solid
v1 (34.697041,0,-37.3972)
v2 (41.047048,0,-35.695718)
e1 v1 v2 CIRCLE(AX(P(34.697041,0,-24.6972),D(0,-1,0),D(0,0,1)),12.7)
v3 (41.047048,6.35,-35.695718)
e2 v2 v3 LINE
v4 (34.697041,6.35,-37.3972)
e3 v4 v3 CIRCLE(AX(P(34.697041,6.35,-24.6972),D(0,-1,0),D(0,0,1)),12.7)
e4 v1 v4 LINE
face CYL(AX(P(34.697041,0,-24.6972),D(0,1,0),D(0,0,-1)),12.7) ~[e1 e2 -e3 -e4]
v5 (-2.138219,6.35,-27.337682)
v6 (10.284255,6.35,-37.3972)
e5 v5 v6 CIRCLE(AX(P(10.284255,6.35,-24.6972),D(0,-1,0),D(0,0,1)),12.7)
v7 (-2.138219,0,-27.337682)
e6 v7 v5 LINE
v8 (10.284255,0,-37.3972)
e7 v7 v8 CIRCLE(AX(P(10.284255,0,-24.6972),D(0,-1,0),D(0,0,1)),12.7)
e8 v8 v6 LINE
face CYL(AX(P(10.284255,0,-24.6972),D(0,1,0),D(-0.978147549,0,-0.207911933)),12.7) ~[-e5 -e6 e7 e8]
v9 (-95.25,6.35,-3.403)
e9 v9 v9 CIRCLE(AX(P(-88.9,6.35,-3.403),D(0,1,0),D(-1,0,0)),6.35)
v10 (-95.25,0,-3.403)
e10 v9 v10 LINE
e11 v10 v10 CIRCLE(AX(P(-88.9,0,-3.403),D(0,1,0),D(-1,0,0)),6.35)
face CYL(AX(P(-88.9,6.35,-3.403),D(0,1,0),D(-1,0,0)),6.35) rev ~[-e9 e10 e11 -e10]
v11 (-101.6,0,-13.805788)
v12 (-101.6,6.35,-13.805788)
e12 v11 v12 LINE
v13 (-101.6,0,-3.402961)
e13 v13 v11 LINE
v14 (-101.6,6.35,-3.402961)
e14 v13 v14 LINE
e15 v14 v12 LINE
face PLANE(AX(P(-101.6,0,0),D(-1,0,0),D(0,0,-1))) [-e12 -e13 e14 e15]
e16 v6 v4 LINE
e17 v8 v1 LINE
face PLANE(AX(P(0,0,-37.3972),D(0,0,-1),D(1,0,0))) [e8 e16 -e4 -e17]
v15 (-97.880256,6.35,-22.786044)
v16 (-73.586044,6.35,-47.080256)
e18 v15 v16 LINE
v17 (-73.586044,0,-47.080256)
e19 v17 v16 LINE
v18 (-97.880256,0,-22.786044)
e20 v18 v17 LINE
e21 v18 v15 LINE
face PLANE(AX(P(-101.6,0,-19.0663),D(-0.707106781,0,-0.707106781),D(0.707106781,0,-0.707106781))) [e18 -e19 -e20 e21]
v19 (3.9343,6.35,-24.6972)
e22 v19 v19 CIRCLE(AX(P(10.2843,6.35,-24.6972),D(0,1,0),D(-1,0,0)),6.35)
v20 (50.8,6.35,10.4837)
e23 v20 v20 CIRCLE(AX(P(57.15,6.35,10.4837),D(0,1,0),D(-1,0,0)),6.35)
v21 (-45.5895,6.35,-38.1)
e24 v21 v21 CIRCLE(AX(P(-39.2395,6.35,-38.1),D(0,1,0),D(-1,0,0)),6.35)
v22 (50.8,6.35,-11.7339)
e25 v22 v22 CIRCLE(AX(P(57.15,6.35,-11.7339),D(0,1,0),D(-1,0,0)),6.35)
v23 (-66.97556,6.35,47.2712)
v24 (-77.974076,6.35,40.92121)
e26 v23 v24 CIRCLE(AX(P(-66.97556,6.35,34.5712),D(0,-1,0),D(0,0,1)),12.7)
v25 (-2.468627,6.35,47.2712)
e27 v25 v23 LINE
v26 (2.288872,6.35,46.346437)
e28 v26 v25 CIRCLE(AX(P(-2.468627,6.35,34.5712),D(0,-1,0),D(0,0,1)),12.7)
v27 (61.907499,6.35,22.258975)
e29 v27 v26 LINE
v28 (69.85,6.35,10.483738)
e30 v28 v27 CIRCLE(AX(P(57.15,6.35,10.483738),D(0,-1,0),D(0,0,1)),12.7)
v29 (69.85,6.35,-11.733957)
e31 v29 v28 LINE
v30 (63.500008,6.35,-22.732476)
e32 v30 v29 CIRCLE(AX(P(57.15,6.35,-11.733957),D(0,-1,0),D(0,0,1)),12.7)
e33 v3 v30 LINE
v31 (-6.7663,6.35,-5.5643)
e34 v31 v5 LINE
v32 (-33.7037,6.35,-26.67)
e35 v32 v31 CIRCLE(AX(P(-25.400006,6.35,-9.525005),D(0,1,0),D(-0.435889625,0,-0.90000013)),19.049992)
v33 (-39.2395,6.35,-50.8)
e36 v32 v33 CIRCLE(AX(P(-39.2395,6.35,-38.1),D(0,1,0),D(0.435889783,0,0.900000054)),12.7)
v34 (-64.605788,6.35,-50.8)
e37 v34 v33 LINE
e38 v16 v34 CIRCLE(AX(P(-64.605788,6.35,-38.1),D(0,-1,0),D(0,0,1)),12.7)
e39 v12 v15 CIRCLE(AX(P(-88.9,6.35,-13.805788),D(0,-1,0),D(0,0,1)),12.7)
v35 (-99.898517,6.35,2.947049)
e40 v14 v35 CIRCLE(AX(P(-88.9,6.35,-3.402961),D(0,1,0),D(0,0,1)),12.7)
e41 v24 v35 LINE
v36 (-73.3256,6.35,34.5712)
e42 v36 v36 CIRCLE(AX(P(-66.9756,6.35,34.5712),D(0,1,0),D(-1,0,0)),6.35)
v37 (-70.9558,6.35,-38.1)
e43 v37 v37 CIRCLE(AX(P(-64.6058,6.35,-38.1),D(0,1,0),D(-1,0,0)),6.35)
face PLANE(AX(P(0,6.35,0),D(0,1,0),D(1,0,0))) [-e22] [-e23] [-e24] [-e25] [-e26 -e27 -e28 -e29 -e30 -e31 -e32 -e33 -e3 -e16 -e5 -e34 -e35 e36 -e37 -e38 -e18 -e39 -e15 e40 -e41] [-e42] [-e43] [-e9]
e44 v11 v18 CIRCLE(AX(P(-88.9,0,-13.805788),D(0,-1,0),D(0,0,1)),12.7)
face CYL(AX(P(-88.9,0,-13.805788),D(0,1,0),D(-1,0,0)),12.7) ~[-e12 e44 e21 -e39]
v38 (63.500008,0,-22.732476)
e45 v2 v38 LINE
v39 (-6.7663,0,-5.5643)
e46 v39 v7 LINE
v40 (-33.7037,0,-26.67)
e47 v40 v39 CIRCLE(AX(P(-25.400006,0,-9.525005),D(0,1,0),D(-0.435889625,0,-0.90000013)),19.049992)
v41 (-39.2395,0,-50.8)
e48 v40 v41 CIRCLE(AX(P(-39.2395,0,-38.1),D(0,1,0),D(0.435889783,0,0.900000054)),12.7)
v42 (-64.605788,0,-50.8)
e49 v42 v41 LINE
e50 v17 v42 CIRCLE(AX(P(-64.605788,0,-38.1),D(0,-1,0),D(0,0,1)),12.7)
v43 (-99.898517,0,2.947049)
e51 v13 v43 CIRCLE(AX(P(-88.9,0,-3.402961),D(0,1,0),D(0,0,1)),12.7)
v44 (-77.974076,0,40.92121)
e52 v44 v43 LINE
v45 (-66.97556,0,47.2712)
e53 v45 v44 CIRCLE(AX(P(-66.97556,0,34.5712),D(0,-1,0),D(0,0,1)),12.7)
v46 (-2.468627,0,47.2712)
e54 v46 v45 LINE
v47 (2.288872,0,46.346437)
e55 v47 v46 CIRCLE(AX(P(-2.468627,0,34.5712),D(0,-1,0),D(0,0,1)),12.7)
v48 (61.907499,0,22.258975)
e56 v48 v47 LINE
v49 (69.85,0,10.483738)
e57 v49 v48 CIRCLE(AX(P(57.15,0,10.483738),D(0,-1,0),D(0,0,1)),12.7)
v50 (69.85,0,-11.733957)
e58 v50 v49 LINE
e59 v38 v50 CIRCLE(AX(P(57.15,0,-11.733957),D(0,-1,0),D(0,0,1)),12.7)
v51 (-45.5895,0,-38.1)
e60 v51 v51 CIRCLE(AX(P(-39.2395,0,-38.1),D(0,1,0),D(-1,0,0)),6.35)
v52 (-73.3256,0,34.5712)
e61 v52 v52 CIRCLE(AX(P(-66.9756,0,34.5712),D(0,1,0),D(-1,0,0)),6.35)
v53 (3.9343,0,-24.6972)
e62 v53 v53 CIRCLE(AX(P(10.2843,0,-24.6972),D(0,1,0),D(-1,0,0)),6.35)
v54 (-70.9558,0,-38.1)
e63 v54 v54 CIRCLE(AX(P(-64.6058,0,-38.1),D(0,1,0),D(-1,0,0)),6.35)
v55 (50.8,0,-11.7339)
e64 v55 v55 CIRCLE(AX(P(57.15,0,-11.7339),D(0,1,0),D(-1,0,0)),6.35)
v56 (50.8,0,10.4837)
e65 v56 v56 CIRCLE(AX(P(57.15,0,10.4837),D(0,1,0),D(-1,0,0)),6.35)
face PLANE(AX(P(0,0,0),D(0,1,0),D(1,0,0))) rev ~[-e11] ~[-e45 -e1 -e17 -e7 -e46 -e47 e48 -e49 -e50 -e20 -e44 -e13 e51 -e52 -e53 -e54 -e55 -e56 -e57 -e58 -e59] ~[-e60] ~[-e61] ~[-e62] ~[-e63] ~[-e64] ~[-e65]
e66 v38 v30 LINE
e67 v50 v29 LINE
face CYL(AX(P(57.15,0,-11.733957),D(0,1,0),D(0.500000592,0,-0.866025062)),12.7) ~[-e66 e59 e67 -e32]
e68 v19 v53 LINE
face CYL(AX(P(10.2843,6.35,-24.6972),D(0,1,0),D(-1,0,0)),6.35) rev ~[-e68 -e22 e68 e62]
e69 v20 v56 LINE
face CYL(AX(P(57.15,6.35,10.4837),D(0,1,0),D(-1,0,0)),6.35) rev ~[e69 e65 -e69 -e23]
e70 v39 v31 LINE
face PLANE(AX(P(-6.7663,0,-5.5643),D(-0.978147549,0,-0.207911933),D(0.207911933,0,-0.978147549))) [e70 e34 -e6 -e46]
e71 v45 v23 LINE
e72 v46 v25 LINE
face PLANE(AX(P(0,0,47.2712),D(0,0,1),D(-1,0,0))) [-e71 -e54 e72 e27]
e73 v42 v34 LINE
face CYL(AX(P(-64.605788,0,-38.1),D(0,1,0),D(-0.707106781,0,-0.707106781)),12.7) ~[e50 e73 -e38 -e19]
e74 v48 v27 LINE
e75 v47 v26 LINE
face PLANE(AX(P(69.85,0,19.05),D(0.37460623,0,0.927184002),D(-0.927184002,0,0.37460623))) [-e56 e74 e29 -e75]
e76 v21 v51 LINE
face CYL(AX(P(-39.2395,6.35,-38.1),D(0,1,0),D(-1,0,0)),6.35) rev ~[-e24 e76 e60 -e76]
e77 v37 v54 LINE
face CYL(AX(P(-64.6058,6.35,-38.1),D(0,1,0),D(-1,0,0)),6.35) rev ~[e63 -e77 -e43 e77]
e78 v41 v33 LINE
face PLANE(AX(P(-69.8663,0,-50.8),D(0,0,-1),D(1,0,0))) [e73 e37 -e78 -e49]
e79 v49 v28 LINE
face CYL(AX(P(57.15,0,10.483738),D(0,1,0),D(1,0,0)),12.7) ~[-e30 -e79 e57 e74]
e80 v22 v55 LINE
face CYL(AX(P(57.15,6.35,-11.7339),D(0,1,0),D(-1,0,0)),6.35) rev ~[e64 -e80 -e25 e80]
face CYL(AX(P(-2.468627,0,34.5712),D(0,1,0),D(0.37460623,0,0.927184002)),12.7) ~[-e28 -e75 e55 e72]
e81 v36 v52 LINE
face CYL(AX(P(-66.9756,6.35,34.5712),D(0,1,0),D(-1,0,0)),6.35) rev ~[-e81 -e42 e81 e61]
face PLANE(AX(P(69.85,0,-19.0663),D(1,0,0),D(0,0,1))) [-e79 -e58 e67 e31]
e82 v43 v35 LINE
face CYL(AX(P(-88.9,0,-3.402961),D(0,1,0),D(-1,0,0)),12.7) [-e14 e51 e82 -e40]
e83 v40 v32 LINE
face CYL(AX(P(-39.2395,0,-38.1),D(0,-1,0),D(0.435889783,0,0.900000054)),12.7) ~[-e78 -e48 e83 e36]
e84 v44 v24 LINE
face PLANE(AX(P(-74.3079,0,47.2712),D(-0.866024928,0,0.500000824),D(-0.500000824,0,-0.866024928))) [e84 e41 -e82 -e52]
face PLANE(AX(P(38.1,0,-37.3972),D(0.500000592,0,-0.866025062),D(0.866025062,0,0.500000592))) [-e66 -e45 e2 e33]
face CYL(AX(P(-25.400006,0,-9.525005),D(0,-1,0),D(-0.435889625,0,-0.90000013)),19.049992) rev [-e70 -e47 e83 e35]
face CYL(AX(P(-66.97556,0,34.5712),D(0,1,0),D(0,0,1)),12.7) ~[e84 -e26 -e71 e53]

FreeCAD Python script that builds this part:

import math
import FreeCAD as App
import Part
import Sketcher
from FreeCAD import Vector
Q = App.Units.Quantity


def edges_at(feature, points):
    """Names of the edges that pass closest to the given points."""
    edges = feature.Shape.Edges
    near = lambda p: min(range(len(edges)), key=lambda i: edges[i].distToShape(Part.Vertex(*p))[0])
    return sorted({f"Edge{near(p) + 1}" for p in points})

doc = App.newDocument("Part")
body = doc.addObject("PartDesign::Body", "Body")

# Sketch on XZ plane
sketch1 = body.newObject("Sketcher::SketchObject", "Sketch")
sketch1.AttachmentSupport = (doc.getObject("XZ_Plane"), [""])
sketch1.MapMode = "FlatFace"
sketch1.addGeometry([
    Part.LineSegment(Vector(-101.6, -19.0663, 0), Vector(-101.6, 0, 0)),  # 0
    Part.LineSegment(Vector(-101.6, 0, 0), Vector(-74.3079, 47.2712, 0)),  # 1
    Part.LineSegment(Vector(-74.3079, 47.2712, 0), Vector(0, 47.2712, 0)),  # 2
    Part.LineSegment(Vector(0, 47.2712, 0), Vector(69.85, 19.05, 0)),  # 3
    Part.LineSegment(Vector(69.85, 19.05, 0), Vector(69.85, -19.0663, 0)),  # 4
    Part.LineSegment(Vector(69.85, -19.0663, 0), Vector(38.1, -37.3972, 0)),  # 5
    Part.LineSegment(Vector(38.1, -37.3972, 0), Vector(0, -37.3972, 0)),  # 6
    Part.LineSegment(Vector(0, -37.3972, 0), Vector(-6.7663, -5.5643, 0)),  # 7
    Part.ArcOfCircle(Part.Circle(Vector(-25.4, -9.525, 0), Vector(0, 0, 1), 19.049999), math.radians(11.999955), math.radians(244.158074)),  # 8
    Part.ArcOfCircle(Part.Circle(Vector(-39.2395, -38.1, 0), Vector(0, 0, 1), 12.699999), math.radians(-90), math.radians(64.158074)),  # 9
    Part.LineSegment(Vector(-39.2395, -50.8, 0), Vector(-69.8663, -50.8, 0)),  # 10
    Part.LineSegment(Vector(-69.8663, -50.8, 0), Vector(-101.6, -19.0663, 0)),  # 11
], False)
sketch1.addConstraint([
    Sketcher.Constraint("Coincident", 0, 2, 1, 1),
    Sketcher.Constraint("Coincident", 1, 2, 2, 1),
    Sketcher.Constraint("Coincident", 2, 2, 3, 1),
    Sketcher.Constraint("Coincident", 3, 2, 4, 1),
    Sketcher.Constraint("Coincident", 4, 2, 5, 1),
    Sketcher.Constraint("Coincident", 5, 2, 6, 1),
    Sketcher.Constraint("Coincident", 6, 2, 7, 1),
    Sketcher.Constraint("Tangent", 7, 2, 8, 1),
    Sketcher.Constraint("Tangent", 8, 2, 9, 2),
    Sketcher.Constraint("Tangent", 9, 1, 10, 1),
    Sketcher.Constraint("Coincident", 10, 2, 11, 1),
    Sketcher.Constraint("Coincident", 11, 2, 0, 1),
    Sketcher.Constraint("Vertical", 0),
    Sketcher.Constraint("Horizontal", 2),
    Sketcher.Constraint("Vertical", 4),
    Sketcher.Constraint("Horizontal", 6),
    Sketcher.Constraint("Horizontal", 10),
    Sketcher.Constraint("PointOnObject", 0, 2, -1),
    Sketcher.Constraint("PointOnObject", 2, 2, -2),
    Sketcher.Constraint("PointOnObject", 6, 2, -2),
    Sketcher.Constraint("Horizontal", 4, 2, 11, 2),
    Sketcher.Constraint("Radius", 9, Q("0.5 in")),
    Sketcher.Constraint("Radius", 8, Q("0.75 in")),
    Sketcher.Constraint("DistanceX", 6, 2, 6, 1, Q("1.5 in")),
    Sketcher.Constraint("DistanceX", 8, 3, -1, 1, Q("1 in")),
    Sketcher.Constraint("DistanceX", 0, 2, -1, 1, Q("4 in")),
    Sketcher.Constraint("DistanceY", 9, 1, -1, 1, Q("2 in")),
    Sketcher.Constraint("Angle", 5, Q("-150 deg")),
    Sketcher.Constraint("Angle", 7, Q("102 deg")),
    Sketcher.Constraint("Angle", 11, Q("135 deg")),
    Sketcher.Constraint("DistanceX", -1, 1, 3, 2, Q("2.75 in")),
    Sketcher.Constraint("DistanceY", -1, 1, 3, 2, Q("0.75 in")),
    Sketcher.Constraint("DistanceY", 8, 3, -1, 1, Q("0.375 in")),
    Sketcher.Constraint("Angle", 1, Q("60 deg")),
    Sketcher.Constraint("Angle", 3, Q("-22 deg")),
])
pad1 = body.newObject("PartDesign::Pad", "Pad")
pad1.Profile = sketch1
pad1.Length = Q("0.25 in")
pad1.Reversed = True
doc.recompute()

fillet = body.newObject("PartDesign::Fillet", "Fillet")
fillet.Base = (pad1, edges_at(pad1, [
    (-69.866, 3.175, -50.8),
    (-101.6, 3.175, -19.066),
    (-101.6, 3.175, 0),
    (-74.308, 3.175, 47.271),
    (0, 3.175, 47.271),
    (0, 3.175, -37.397),
    (38.1, 3.175, -37.397),
    (69.85, 3.175, -19.066),
    (69.85, 3.175, 19.05),
]))
fillet.Radius = Q("0.5 in")

# Sketch on XZ plane
sketch2 = body.newObject("Sketcher::SketchObject", "Sketch001")
sketch2.AttachmentSupport = (doc.getObject("XZ_Plane"), [""])
sketch2.MapMode = "FlatFace"
sketch2.AttachmentOffset = App.Placement(Vector(0, 0, -0.25 * 25.4), App.Rotation())
sketch2.addGeometry([
    Part.Circle(Vector(-64.6058, -38.1, 0), Vector(0, 0, 1), 6.35),  # 0
    Part.Circle(Vector(-39.2395, -38.1, 0), Vector(0, 0, 1), 6.35),  # 1
    Part.Circle(Vector(10.2843, -24.6972, 0), Vector(0, 0, 1), 6.35),  # 2
    Part.Circle(Vector(57.15, -11.7339, 0), Vector(0, 0, 1), 6.35),  # 3
    Part.Circle(Vector(57.15, 10.4837, 0), Vector(0, 0, 1), 6.35),  # 4
    Part.Circle(Vector(-66.9756, 34.5712, 0), Vector(0, 0, 1), 6.35),  # 5
    Part.Circle(Vector(-88.9, -3.403, 0), Vector(0, 0, 1), 6.35),  # 6
], False)
sketch2.addConstraint([
    Sketcher.Constraint("Equal", 0, 1),
    Sketcher.Constraint("Equal", 1, 2),
    Sketcher.Constraint("Equal", 2, 3),
    Sketcher.Constraint("Equal", 3, 4),
    Sketcher.Constraint("Equal", 4, 5),
    Sketcher.Constraint("Equal", 5, 6),
    Sketcher.Constraint("Horizontal", 0, 3, 1, 3),
    Sketcher.Constraint("Vertical", 3, 3, 4, 3),
    Sketcher.Constraint("Diameter", 0, Q("0.5 in")),
    Sketcher.Constraint("DistanceY", 0, 3, -1, 1, Q("1.5 in")),
    Sketcher.Constraint("DistanceX", 6, 3, -1, 1, Q("3.5 in")),
    Sketcher.Constraint("DistanceX", -1, 1, 3, 3, Q("2.25 in")),
    Sketcher.Constraint("DistanceY", 3, 3, 6, 3, Q("0.328 in")),
    Sketcher.Constraint("DistanceX", -1, 1, 2, 3, Q("0.4049 in")),
    Sketcher.Constraint("DistanceY", 3, 3, 4, 3, Q("0.8747 in")),
    Sketcher.Constraint("DistanceX", 5, 3, 0, 3, Q("0.0933 in")),
    Sketcher.Constraint("DistanceY", 2, 3, 5, 3, Q("2.3334 in")),
    Sketcher.Constraint("DistanceX", 0, 3, -1, 1, Q("64.6058 mm")),
    Sketcher.Constraint("DistanceX", 1, 3, -1, 1, Q("39.2395 mm")),
    Sketcher.Constraint("DistanceY", 2, 3, -1, 1, Q("24.6972 mm")),
    Sketcher.Constraint("DistanceY", 3, 3, -1, 1, Q("11.734 mm")),
])
pocket1 = body.newObject("PartDesign::Pocket", "Pocket")
pocket1.Profile = sketch2
pocket1.Length = Q("0.6 in")
pocket1.Reversed = True

doc.recompute()
